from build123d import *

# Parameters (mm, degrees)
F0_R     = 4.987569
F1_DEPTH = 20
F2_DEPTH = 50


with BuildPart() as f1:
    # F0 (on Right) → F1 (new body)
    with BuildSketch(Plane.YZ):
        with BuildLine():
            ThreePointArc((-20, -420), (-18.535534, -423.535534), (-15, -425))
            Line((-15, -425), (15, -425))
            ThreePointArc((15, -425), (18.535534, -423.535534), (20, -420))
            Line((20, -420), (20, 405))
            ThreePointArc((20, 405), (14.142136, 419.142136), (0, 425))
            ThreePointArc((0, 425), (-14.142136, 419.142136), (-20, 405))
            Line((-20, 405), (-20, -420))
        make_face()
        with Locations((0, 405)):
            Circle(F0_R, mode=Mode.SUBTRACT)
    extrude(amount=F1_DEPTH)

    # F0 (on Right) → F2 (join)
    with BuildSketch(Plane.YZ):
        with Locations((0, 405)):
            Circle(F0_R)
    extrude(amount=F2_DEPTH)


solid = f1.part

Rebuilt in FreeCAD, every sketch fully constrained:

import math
import FreeCAD as App
import Part
import Sketcher

V = App.Vector

doc = App.newDocument("Part")
params = doc.addObject("Spreadsheet::Sheet", "Params")
for row, (alias, value) in enumerate([
    ("sketch1_radius", "5 mm"),
    ("sketch1_radius2", "19.999999 mm"),
    ("sketch1_height", "825 mm"),
    ("pad1_length", "20 mm"),
    ("pad2_length", "50 mm"),
], start=1):
    params.set(f"A{row}", alias)
    params.set(f"B{row}", "=" + value)
    params.setAlias(f"B{row}", alias)

body = doc.addObject("PartDesign::Body", "Body")

# Sketch on YZ plane
sketch1 = body.newObject("Sketcher::SketchObject", "Sketch")
sketch1.AttachmentSupport = (doc.getObject("YZ_Plane"), [""])
sketch1.MapMode = "FlatFace"
sketch1.addGeometry([
    Part.ArcOfCircle(Part.Circle(V(-15, -420, 0), V(0, 0, 1), 5), math.radians(180), math.radians(270)),  # 0
    Part.LineSegment(V(-15, -425, 0), V(15, -425, 0)),  # 1
    Part.ArcOfCircle(Part.Circle(V(15, -420, 0), V(0, 0, 1), 5), math.radians(-90), math.radians(0)),  # 2
    Part.LineSegment(V(20, -420, 0), V(20, 405, 0)),  # 3
    Part.ArcOfCircle(Part.Circle(V(0, 405, 0), V(0, 0, 1), 20), math.radians(0), math.radians(90)),  # 4
    Part.ArcOfCircle(Part.Circle(V(0, 405, 0), V(0, 0, 1), 20), math.radians(90), math.radians(180)),  # 5
    Part.LineSegment(V(-20, 405, 0), V(-20, -420, 0)),  # 6
    Part.Circle(V(0, 405, 0), V(0, 0, 1), 5),  # 7
], False)
sketch1.addConstraint([
    Sketcher.Constraint("Tangent", 0, 2, 1, 1),
    Sketcher.Constraint("Tangent", 1, 2, 2, 1),
    Sketcher.Constraint("Tangent", 2, 2, 3, 1),
    Sketcher.Constraint("Tangent", 3, 2, 4, 1),
    Sketcher.Constraint("Tangent", 4, 2, 5, 1),
    Sketcher.Constraint("Tangent", 5, 2, 6, 1),
    Sketcher.Constraint("Tangent", 6, 2, 0, 1),
    Sketcher.Constraint("Horizontal", 1),
    Sketcher.Constraint("Vertical", 3),
    Sketcher.Constraint("Vertical", 6),
    Sketcher.Constraint("Coincident", 7, 3, 4, 3),
    Sketcher.Constraint("Equal", 0, 2),
    Sketcher.Constraint("Equal", 4, 5),
    Sketcher.Constraint("PointOnObject", 4, 3, -2),
    Sketcher.Constraint("PointOnObject", 4, 2, -2),
    Sketcher.Constraint("Radius", 0, 5.0),
    Sketcher.Constraint("Radius", 4, 19.999999),
    Sketcher.Constraint("DistanceY", 3, 1, 3, 2, 825.0),
    Sketcher.Constraint("DistanceY", 0, 3, -1, 1, 420.0),
    Sketcher.Constraint("Diameter", 7, 9.975138),
])
sketch1.setExpression("Constraints[15]", "Params.sketch1_radius")
sketch1.setExpression("Constraints[16]", "Params.sketch1_radius2")
sketch1.setExpression("Constraints[17]", "Params.sketch1_height")
pad1 = body.newObject("PartDesign::Pad", "Pad")
pad1.Profile = sketch1
pad1.setExpression("Length", "Params.pad1_length")

# Sketch on YZ plane
sketch2 = body.newObject("Sketcher::SketchObject", "Sketch001")
sketch2.AttachmentSupport = (doc.getObject("YZ_Plane"), [""])
sketch2.MapMode = "FlatFace"
sketch2.addGeometry(Part.Circle(V(0, 405, 0), V(0, 0, 1), 5), False)
sketch2.addConstraint([
    Sketcher.Constraint("PointOnObject", 0, 3, -2),
    Sketcher.Constraint("DistanceY", -1, 1, 0, 3, 405.0),
    Sketcher.Constraint("Diameter", 0, 9.975138),
])
pad2 = body.newObject("PartDesign::Pad", "Pad001")
pad2.Profile = sketch2
pad2.setExpression("Length", "Params.pad2_length")

doc.recompute()
